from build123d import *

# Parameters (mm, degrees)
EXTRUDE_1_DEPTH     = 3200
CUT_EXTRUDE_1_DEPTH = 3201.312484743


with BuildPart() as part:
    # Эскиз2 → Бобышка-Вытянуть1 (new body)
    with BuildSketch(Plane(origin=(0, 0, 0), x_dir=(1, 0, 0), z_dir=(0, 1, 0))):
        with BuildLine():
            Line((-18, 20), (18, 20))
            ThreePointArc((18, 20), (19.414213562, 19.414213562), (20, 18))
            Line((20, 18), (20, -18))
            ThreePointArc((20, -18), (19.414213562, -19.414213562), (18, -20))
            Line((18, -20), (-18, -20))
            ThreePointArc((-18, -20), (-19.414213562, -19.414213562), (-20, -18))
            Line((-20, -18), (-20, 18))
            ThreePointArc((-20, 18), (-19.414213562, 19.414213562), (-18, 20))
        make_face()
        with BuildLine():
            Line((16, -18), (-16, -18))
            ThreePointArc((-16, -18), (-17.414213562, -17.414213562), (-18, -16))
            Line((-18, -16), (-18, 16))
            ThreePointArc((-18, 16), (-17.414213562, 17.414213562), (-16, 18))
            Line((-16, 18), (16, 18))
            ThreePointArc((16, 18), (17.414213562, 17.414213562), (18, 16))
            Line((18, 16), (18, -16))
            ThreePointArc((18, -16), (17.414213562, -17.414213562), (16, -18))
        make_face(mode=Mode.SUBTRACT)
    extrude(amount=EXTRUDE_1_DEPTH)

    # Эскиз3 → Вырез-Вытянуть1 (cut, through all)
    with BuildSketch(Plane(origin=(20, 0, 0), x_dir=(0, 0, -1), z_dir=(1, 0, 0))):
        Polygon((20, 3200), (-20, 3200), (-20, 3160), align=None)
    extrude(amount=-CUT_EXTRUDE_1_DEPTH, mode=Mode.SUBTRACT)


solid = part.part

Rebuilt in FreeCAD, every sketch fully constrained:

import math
import FreeCAD as App
import Part
import Sketcher
from FreeCAD import Vector
Q = App.Units.Quantity


def add_polygon(sketch, points):
    """Adds a closed chain of lines whose ends are joined by coincident constraints."""
    first, n = sketch.GeometryCount, len(points)
    for a, b in zip(points, points[1:] + points[:1]):
        sketch.addGeometry(Part.LineSegment(App.Vector(*a, 0), App.Vector(*b, 0)), False)
    for i in range(n):
        sketch.addConstraint(Sketcher.Constraint("Coincident", first + i, 2, first + (i + 1) % n, 1))

doc = App.newDocument("Part")
body = doc.addObject("PartDesign::Body", "Body")

sketch1 = body.newObject("Sketcher::SketchObject", "Sketch")
sketch1.AttachmentSupport = (doc.getObject("XZ_Plane"), [""])
sketch1.MapMode = "FlatFace"
sketch1.addGeometry([
    Part.LineSegment(Vector(18, -20, 0), Vector(-18, -20, 0)),
    Part.ArcOfCircle(Part.Circle(Vector(-18, -18, 0), Vector(0, 0, 1), 2), math.radians(-180), math.radians(-90)),
    Part.LineSegment(Vector(-20, -18, 0), Vector(-20, 18, 0)),
    Part.ArcOfCircle(Part.Circle(Vector(-18, 18, 0), Vector(0, 0, 1), 2), math.radians(90), math.radians(180)),
    Part.LineSegment(Vector(-18, 20, 0), Vector(18, 20, 0)),
    Part.ArcOfCircle(Part.Circle(Vector(18, 18, 0), Vector(0, 0, 1), 2), math.radians(0), math.radians(90)),
    Part.LineSegment(Vector(20, 18, 0), Vector(20, -18, 0)),
    Part.ArcOfCircle(Part.Circle(Vector(18, -18, 0), Vector(0, 0, 1), 2), math.radians(-90), math.radians(0)),
    Part.LineSegment(Vector(16, 18, 0), Vector(-16, 18, 0)),
    Part.ArcOfCircle(Part.Circle(Vector(-16, 16, 0), Vector(0, 0, 1), 2), math.radians(90), math.radians(180)),
    Part.LineSegment(Vector(-18, 16, 0), Vector(-18, -16, 0)),
    Part.ArcOfCircle(Part.Circle(Vector(-16, -16, 0), Vector(0, 0, 1), 2), math.radians(-180), math.radians(-90)),
    Part.LineSegment(Vector(-16, -18, 0), Vector(16, -18, 0)),
    Part.ArcOfCircle(Part.Circle(Vector(16, -16, 0), Vector(0, 0, 1), 2), math.radians(-90), math.radians(0)),
    Part.LineSegment(Vector(18, -16, 0), Vector(18, 16, 0)),
    Part.ArcOfCircle(Part.Circle(Vector(16, 16, 0), Vector(0, 0, 1), 2), math.radians(0), math.radians(90)),
], False)
sketch1.addConstraint([
    Sketcher.Constraint("Tangent", 0, 2, 1, 2),
    Sketcher.Constraint("Tangent", 1, 1, 2, 1),
    Sketcher.Constraint("Tangent", 2, 2, 3, 2),
    Sketcher.Constraint("Tangent", 3, 1, 4, 1),
    Sketcher.Constraint("Tangent", 4, 2, 5, 2),
    Sketcher.Constraint("Tangent", 5, 1, 6, 1),
    Sketcher.Constraint("Tangent", 6, 2, 7, 2),
    Sketcher.Constraint("Tangent", 7, 1, 0, 1),
    Sketcher.Constraint("Tangent", 8, 2, 9, 1),
    Sketcher.Constraint("Tangent", 9, 2, 10, 1),
    Sketcher.Constraint("Tangent", 10, 2, 11, 1),
    Sketcher.Constraint("Tangent", 11, 2, 12, 1),
    Sketcher.Constraint("Tangent", 12, 2, 13, 1),
    Sketcher.Constraint("Tangent", 13, 2, 14, 1),
    Sketcher.Constraint("Tangent", 14, 2, 15, 1),
    Sketcher.Constraint("Tangent", 15, 2, 8, 1),
    Sketcher.Constraint("Horizontal", 0),
    Sketcher.Constraint("Vertical", 2),
    Sketcher.Constraint("Horizontal", 4),
    Sketcher.Constraint("Vertical", 6),
    Sketcher.Constraint("Horizontal", 8),
    Sketcher.Constraint("Vertical", 10),
    Sketcher.Constraint("Horizontal", 12),
    Sketcher.Constraint("Vertical", 14),
    Sketcher.Constraint("Equal", 1, 3),
    Sketcher.Constraint("Equal", 3, 5),
    Sketcher.Constraint("Equal", 5, 7),
    Sketcher.Constraint("Equal", 7, 9),
    Sketcher.Constraint("Equal", 9, 11),
    Sketcher.Constraint("Equal", 11, 13),
    Sketcher.Constraint("Equal", 13, 15),
    Sketcher.Constraint("Symmetric", 1, 3, 5, 3, -1, 1),
    Sketcher.Constraint("Symmetric", 9, 3, 13, 3, -1, 1),
    Sketcher.Constraint("Horizontal", 5, 1, 8, 2),
    Sketcher.Constraint("Vertical", 3, 1, 9, 2),
    Sketcher.Constraint("Equal", 4, 2),
    Sketcher.Constraint("Radius", 1, Q("2 mm")),
    Sketcher.Constraint("DistanceX", 0, 2, 0, 1, Q("36 mm")),
])
pad1 = body.newObject("PartDesign::Pad", "Pad")
pad1.Profile = sketch1
pad1.Length = 3200
pad1.Reversed = True

sketch2 = body.newObject("Sketcher::SketchObject", "Sketch001")
sketch2.AttachmentSupport = (doc.getObject("YZ_Plane"), [""])
sketch2.MapMode = "FlatFace"
sketch2.AttachmentOffset = App.Placement(Vector(0, 0, 20), App.Rotation())
add_polygon(sketch2, [(3200, -20), (3200, 20), (3160, 20)])
sketch2.addConstraint([
    Sketcher.Constraint("Vertical", 0),
    Sketcher.Constraint("Horizontal", 1),
    Sketcher.Constraint("Equal", 1, 0),
    Sketcher.Constraint("DistanceX", 1, 2, 1, 1, Q("40 mm")),
    Sketcher.Constraint("DistanceX", -1, 1, 0, 2, Q("3200 mm")),
    Sketcher.Constraint("DistanceY", -1, 1, 0, 2, Q("20 mm")),
])
pocket1 = body.newObject("PartDesign::Pocket", "Pocket")
pocket1.Profile = sketch2
pocket1.Type = "ThroughAll"

doc.recompute()
